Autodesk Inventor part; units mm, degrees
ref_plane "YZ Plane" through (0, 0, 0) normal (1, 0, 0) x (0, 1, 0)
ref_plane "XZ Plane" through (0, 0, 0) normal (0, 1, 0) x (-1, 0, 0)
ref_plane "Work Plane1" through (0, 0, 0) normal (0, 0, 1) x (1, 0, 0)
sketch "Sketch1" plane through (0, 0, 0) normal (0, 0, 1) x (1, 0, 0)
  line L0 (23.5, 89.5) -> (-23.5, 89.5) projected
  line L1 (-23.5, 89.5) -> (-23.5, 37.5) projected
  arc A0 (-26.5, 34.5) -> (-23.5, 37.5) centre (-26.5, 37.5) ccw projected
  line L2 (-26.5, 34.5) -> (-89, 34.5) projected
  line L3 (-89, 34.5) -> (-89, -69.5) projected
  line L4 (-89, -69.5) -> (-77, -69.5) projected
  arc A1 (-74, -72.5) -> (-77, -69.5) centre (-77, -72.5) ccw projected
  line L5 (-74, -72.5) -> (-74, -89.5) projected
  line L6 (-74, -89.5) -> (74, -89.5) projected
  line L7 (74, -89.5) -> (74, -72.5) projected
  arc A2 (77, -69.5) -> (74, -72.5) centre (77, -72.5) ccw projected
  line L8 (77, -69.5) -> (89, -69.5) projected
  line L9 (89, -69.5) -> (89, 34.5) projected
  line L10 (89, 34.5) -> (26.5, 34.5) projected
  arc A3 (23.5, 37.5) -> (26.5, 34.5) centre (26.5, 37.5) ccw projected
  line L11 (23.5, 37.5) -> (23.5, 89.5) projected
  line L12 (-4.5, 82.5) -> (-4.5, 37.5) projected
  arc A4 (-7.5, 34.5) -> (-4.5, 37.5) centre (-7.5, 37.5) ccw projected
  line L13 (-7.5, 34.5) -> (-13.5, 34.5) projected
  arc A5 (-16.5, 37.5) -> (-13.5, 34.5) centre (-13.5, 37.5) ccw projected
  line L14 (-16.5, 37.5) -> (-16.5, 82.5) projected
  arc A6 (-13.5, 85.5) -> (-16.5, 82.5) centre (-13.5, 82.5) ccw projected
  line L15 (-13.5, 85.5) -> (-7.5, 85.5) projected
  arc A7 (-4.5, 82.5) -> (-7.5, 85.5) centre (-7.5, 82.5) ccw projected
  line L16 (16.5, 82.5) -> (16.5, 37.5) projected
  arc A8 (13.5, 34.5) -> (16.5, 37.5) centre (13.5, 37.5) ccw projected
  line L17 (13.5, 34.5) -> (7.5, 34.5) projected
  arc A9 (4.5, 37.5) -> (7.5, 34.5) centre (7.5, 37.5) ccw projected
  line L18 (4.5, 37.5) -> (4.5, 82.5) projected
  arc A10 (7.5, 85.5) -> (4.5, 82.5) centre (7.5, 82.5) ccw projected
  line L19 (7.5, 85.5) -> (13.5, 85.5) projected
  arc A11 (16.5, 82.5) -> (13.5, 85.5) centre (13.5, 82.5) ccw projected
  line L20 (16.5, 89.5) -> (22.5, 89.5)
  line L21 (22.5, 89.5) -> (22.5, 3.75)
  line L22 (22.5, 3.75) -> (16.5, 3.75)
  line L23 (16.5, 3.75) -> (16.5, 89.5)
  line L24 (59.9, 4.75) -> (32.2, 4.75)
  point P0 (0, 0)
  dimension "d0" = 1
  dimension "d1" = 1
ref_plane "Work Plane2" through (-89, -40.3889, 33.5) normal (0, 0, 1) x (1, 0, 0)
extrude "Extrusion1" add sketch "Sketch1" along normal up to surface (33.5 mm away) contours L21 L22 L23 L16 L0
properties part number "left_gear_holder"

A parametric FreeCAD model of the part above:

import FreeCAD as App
import Part
import Sketcher

doc = App.newDocument("Part")
body = doc.addObject("PartDesign::Body", "Body")

# Sketch on XY plane
sketch1 = body.newObject("Sketcher::SketchObject", "Sketch")
sketch1.AttachmentSupport = (doc.getObject("XY_Plane"), [""])
sketch1.MapMode = "FlatFace"
sketch1.addGeometry([
    Part.LineSegment(App.Vector(22.5, 3.75, 0), App.Vector(22.5, 89.5, 0)),
    Part.LineSegment(App.Vector(22.5, 89.5, 0), App.Vector(16.5, 89.5, 0)),
    Part.LineSegment(App.Vector(16.5, 89.5, 0), App.Vector(16.5, 3.75, 0)),
    Part.LineSegment(App.Vector(16.5, 3.75, 0), App.Vector(22.5, 3.75, 0)),
], False)
sketch1.addConstraint([
    Sketcher.Constraint("Coincident", 0, 2, 1, 1),
    Sketcher.Constraint("Coincident", 1, 2, 2, 1),
    Sketcher.Constraint("Coincident", 2, 2, 3, 1),
    Sketcher.Constraint("Coincident", 3, 2, 0, 1),
    Sketcher.Constraint("Vertical", 0),
    Sketcher.Constraint("Horizontal", 1),
    Sketcher.Constraint("Vertical", 2),
    Sketcher.Constraint("Horizontal", 3),
    Sketcher.Constraint("DistanceX", 1, 2, 1, 1, 6.0),
    Sketcher.Constraint("DistanceY", 0, 1, 0, 2, 85.75),
    Sketcher.Constraint("DistanceX", -1, 1, 0, 2, 22.5),
    Sketcher.Constraint("DistanceY", -1, 1, 0, 2, 89.5),
])
pad1 = body.newObject("PartDesign::Pad", "Pad")
pad1.Profile = sketch1
pad1.Length = 33.5

doc.recompute()
